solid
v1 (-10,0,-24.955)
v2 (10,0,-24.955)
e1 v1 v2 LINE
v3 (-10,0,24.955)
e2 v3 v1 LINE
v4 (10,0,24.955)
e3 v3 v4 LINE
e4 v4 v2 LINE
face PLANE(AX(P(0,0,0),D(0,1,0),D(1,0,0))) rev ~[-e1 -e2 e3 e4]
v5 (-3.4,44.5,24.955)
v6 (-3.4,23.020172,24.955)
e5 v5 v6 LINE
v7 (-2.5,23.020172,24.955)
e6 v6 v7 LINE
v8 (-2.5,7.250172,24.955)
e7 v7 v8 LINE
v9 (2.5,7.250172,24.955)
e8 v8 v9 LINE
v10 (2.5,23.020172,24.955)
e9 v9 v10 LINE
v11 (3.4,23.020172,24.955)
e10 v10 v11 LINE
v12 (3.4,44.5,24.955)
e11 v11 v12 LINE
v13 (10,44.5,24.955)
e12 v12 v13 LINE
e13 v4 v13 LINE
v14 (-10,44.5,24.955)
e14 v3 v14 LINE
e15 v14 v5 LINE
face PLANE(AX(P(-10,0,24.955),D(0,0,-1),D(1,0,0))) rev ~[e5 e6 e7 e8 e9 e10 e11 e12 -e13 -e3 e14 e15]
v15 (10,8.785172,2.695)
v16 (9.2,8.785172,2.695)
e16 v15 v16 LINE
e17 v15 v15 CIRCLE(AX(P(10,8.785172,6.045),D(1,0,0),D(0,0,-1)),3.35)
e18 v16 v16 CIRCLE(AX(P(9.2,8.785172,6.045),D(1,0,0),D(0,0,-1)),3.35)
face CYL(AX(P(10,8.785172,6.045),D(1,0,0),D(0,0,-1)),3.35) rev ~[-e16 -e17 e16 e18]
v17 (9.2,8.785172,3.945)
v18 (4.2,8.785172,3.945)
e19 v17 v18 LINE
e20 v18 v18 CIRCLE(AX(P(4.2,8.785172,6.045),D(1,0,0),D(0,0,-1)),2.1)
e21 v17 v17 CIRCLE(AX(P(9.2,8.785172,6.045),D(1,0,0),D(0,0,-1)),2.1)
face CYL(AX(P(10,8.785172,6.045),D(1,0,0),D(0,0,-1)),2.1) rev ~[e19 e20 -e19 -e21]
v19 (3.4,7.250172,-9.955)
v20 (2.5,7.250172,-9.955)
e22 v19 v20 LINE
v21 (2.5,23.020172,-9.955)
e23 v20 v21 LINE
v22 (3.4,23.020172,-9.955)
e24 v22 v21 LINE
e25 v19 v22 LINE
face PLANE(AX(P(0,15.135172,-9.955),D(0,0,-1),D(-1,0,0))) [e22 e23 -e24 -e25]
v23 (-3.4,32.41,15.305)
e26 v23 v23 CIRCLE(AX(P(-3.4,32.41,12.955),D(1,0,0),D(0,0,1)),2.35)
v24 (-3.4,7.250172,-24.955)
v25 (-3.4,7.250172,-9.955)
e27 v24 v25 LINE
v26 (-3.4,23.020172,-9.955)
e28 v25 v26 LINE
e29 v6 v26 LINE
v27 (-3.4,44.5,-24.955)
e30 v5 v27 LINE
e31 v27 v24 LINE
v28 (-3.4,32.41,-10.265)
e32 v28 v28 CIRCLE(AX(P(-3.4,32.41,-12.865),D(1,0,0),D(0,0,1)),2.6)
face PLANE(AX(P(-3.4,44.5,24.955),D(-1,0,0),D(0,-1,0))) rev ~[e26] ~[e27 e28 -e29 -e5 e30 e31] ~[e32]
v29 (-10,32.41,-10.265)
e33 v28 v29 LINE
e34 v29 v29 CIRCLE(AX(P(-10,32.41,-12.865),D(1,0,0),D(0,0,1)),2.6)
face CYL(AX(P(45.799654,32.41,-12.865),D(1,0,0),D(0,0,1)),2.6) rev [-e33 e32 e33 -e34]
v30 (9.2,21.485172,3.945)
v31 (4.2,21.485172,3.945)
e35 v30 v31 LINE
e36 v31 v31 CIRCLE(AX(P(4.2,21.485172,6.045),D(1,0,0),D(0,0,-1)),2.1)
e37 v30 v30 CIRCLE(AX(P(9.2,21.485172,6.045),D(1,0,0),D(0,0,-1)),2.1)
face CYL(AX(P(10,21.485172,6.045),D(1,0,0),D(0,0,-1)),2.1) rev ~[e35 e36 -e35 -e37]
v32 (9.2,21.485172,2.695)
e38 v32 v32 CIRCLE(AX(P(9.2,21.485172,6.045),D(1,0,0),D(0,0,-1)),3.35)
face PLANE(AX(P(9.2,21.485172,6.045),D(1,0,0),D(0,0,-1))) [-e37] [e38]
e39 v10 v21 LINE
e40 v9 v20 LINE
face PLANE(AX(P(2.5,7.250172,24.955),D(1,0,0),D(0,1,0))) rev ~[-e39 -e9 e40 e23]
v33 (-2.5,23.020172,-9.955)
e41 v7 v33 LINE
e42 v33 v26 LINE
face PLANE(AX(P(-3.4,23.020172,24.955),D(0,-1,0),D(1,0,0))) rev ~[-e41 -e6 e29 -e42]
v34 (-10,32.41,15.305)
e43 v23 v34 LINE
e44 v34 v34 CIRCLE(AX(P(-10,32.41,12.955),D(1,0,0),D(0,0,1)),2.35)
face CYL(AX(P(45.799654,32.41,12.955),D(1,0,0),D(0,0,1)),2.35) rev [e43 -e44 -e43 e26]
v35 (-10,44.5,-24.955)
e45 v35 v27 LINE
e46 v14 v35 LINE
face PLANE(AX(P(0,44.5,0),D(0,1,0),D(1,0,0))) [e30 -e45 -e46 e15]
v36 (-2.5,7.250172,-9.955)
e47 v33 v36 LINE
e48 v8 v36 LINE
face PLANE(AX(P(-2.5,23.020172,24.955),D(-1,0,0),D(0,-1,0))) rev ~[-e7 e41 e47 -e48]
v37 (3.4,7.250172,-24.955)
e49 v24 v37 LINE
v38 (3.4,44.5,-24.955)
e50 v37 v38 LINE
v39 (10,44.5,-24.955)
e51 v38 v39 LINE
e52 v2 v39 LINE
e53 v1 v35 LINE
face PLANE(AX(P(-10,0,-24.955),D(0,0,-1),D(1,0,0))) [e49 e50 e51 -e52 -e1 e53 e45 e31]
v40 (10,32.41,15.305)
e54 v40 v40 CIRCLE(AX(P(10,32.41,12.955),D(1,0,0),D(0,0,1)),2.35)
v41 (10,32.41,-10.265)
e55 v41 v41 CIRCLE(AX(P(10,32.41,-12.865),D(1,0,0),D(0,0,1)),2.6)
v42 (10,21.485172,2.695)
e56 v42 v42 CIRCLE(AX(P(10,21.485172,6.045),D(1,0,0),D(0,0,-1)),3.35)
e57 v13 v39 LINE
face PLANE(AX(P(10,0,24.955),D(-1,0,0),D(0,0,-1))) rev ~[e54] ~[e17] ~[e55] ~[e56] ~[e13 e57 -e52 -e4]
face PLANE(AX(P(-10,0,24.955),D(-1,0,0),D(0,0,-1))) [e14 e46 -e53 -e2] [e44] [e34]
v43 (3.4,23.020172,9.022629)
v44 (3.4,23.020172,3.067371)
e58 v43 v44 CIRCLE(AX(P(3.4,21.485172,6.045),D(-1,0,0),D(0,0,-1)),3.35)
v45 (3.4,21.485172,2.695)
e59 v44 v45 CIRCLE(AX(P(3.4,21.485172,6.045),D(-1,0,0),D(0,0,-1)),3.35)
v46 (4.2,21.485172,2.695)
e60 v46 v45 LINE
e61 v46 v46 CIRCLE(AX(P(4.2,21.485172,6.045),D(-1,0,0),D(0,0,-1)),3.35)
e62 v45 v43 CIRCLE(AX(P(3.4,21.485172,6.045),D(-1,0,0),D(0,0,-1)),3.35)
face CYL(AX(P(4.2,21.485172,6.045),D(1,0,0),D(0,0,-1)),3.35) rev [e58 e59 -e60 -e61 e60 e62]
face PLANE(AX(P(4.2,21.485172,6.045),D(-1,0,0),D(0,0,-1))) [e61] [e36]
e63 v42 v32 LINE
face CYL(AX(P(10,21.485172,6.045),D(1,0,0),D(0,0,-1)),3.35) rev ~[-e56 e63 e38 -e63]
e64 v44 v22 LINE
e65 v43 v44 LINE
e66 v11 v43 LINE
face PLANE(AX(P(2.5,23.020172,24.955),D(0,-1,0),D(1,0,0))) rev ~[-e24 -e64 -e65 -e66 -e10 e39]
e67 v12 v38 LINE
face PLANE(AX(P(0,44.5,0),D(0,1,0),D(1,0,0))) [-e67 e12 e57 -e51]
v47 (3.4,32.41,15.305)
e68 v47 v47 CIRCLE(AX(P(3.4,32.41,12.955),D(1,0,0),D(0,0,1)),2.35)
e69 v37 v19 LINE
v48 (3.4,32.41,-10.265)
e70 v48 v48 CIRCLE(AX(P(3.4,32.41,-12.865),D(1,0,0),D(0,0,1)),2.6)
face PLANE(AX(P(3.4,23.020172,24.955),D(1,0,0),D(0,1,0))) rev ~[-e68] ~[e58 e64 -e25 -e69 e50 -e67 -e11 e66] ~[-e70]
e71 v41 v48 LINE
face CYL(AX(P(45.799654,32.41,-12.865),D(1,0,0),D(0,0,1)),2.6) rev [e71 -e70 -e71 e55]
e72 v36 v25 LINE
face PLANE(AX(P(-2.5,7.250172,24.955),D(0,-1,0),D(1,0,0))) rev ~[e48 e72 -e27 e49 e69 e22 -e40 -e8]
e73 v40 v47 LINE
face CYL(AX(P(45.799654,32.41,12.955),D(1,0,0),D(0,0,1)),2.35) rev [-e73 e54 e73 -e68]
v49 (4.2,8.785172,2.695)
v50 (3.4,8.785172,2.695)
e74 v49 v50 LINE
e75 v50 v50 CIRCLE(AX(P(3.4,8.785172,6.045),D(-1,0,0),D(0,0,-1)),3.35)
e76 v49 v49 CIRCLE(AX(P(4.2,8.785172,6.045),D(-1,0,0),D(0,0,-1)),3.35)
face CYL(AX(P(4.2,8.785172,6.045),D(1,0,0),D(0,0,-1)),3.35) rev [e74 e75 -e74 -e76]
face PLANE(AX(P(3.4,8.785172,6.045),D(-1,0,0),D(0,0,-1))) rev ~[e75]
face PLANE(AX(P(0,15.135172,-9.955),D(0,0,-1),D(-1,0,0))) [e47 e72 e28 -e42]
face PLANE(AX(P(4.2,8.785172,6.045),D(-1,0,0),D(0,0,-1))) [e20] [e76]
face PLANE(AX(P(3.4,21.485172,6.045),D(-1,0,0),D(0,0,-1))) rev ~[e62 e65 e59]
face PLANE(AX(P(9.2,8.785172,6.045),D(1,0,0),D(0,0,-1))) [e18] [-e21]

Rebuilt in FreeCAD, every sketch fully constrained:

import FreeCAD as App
import Part
import Sketcher

V = App.Vector


def add_polygon(sketch, points):
    """Adds a closed chain of lines whose ends are joined by coincident constraints."""
    first, n = sketch.GeometryCount, len(points)
    for a, b in zip(points, points[1:] + points[:1]):
        sketch.addGeometry(Part.LineSegment(App.Vector(*a, 0), App.Vector(*b, 0)), False)
    for i in range(n):
        sketch.addConstraint(Sketcher.Constraint("Coincident", first + i, 2, first + (i + 1) % n, 1))

doc = App.newDocument("Part")
body = doc.addObject("PartDesign::Body", "Body")

# Sketch on XZ plane
sketch1 = body.newObject("Sketcher::SketchObject", "Sketch")
sketch1.AttachmentSupport = (doc.getObject("XZ_Plane"), [""])
sketch1.MapMode = "FlatFace"
add_polygon(sketch1, [(-10, -24.955), (-10, 24.955), (10, 24.955), (10, -24.955)])  # lines 0-3
sketch1.addConstraint([
    Sketcher.Constraint("Vertical", 0),
    Sketcher.Constraint("Horizontal", 1),
    Sketcher.Constraint("Vertical", 2),
    Sketcher.Constraint("Horizontal", 3),
    Sketcher.Constraint("Symmetric", 0, 2, 2, 2, -1, 1),
    Sketcher.Constraint("DistanceX", 1, 1, 1, 2, 20.0),
    Sketcher.Constraint("DistanceY", 0, 1, 0, 2, 49.91),
])
pad1 = body.newObject("PartDesign::Pad", "Pad")
pad1.Profile = sketch1
pad1.Length = 44.5
pad1.Reversed = True

# Sketch on XY plane
sketch2 = body.newObject("Sketcher::SketchObject", "Sketch001")
sketch2.AttachmentSupport = (doc.getObject("XY_Plane"), [""])
sketch2.MapMode = "FlatFace"
sketch2.AttachmentOffset = App.Placement(V(0, 0, 24.955), App.Rotation())
add_polygon(sketch2, [(3.4, 44.5), (-3.4, 44.5), (-3.4, 23.020172), (-2.5, 23.020172), (-2.5, 7.250172), (2.5, 7.250172), (2.5, 23.020172), (3.4, 23.020172)])  # lines 0-7
sketch2.addConstraint([
    Sketcher.Constraint("Horizontal", 0),
    Sketcher.Constraint("Vertical", 1),
    Sketcher.Constraint("Horizontal", 2),
    Sketcher.Constraint("Vertical", 3),
    Sketcher.Constraint("Horizontal", 4),
    Sketcher.Constraint("Vertical", 5),
    Sketcher.Constraint("Horizontal", 6),
    Sketcher.Constraint("Vertical", 7),
    Sketcher.Constraint("Symmetric", 2, 2, 5, 2, -2),
    Sketcher.Constraint("Equal", 2, 6),
    Sketcher.Constraint("DistanceX", 4, 1, 4, 2, 5.0),
    Sketcher.Constraint("DistanceX", 0, 2, 0, 1, 6.8),
    Sketcher.Constraint("DistanceY", 3, 2, 3, 1, 15.77),
    Sketcher.Constraint("DistanceY", -1, 1, 0, 2, 44.5),
    Sketcher.Constraint("DistanceY", 1, 2, 1, 1, 21.479828),
])
pocket1 = body.newObject("PartDesign::Pocket", "Pocket")
pocket1.Profile = sketch2
pocket1.Type = "ThroughAll"

# Sketch on YZ plane
sketch3 = body.newObject("Sketcher::SketchObject", "Sketch002")
sketch3.AttachmentSupport = (doc.getObject("YZ_Plane"), [""])
sketch3.MapMode = "FlatFace"
sketch3.AttachmentOffset = App.Placement(V(0, 0, -10), App.Rotation())
sketch3.addGeometry([
    Part.Circle(V(32.41, -12.865, 0), V(0, 0, 1), 2.6),
    Part.Circle(V(32.41, 12.955, 0), V(0, 0, 1), 2.35),
], False)
sketch3.addConstraint([
    Sketcher.Constraint("Vertical", 0, 3, 1, 3),
    Sketcher.Constraint("Diameter", 0, 5.2),
    Sketcher.Constraint("Diameter", 1, 4.7),
    Sketcher.Constraint("DistanceX", -1, 1, 0, 3, 32.41),
    Sketcher.Constraint("DistanceY", 0, 3, 1, 3, 25.82),
    Sketcher.Constraint("DistanceY", 0, 3, -1, 1, 12.865),
])
pocket2 = body.newObject("PartDesign::Pocket", "Pocket001")
pocket2.Profile = sketch3
pocket2.Type = "ThroughAll"
pocket2.Midplane = True

# Sketch on YZ plane
sketch4 = body.newObject("Sketcher::SketchObject", "Sketch003")
sketch4.AttachmentSupport = (doc.getObject("YZ_Plane"), [""])
sketch4.MapMode = "FlatFace"
sketch4.AttachmentOffset = App.Placement(V(0, 0, 10), App.Rotation())
sketch4.addGeometry([
    Part.Circle(V(21.485172, 6.045, 0), V(0, 0, 1), 2.1),
    Part.Circle(V(8.785172, 6.045, 0), V(0, 0, 1), 2.1),
], False)
sketch4.addConstraint([
    Sketcher.Constraint("Equal", 0, 1),
    Sketcher.Constraint("Horizontal", 0, 3, 1, 3),
    Sketcher.Constraint("Diameter", 0, 4.2),
    Sketcher.Constraint("DistanceX", 1, 3, 0, 3, 12.7),
    Sketcher.Constraint("DistanceY", -1, 1, 0, 3, 6.045),
    Sketcher.Constraint("DistanceX", -1, 1, 0, 3, 21.485172),
])
pocket3 = body.newObject("PartDesign::Pocket", "Pocket002")
pocket3.Profile = sketch4
pocket3.Length = 6.6

# Sketch on YZ plane
sketch5 = body.newObject("Sketcher::SketchObject", "Sketch004")
sketch5.AttachmentSupport = (doc.getObject("YZ_Plane"), [""])
sketch5.MapMode = "FlatFace"
sketch5.AttachmentOffset = App.Placement(V(0, 0, 10), App.Rotation())
sketch5.addGeometry([
    Part.Circle(V(21.485172, 6.045, 0), V(0, 0, 1), 3.35),
    Part.Circle(V(8.785172, 6.045, 0), V(0, 0, 1), 3.35),
], False)
sketch5.addConstraint([
    Sketcher.Constraint("Equal", 0, 1),
    Sketcher.Constraint("Horizontal", 0, 3, 1, 3),
    Sketcher.Constraint("Diameter", 0, 6.7),
    Sketcher.Constraint("DistanceX", 1, 3, 0, 3, 12.7),
    Sketcher.Constraint("DistanceY", -1, 1, 0, 3, 6.045),
    Sketcher.Constraint("DistanceX", -1, 1, 0, 3, 21.485172),
])
pocket4 = body.newObject("PartDesign::Pocket", "Pocket003")
pocket4.Profile = sketch5
pocket4.Length = 0.8

# Sketch on YZ plane
sketch6 = body.newObject("Sketcher::SketchObject", "Sketch005")
sketch6.AttachmentSupport = (doc.getObject("YZ_Plane"), [""])
sketch6.MapMode = "FlatFace"
sketch6.AttachmentOffset = App.Placement(V(0, 0, 4.2), App.Rotation())
sketch6.addGeometry([
    Part.Circle(V(21.485172, 6.045, 0), V(0, 0, 1), 3.35),
    Part.Circle(V(8.785172, 6.045, 0), V(0, 0, 1), 3.35),
], False)
sketch6.addConstraint([
    Sketcher.Constraint("Equal", 0, 1),
    Sketcher.Constraint("Horizontal", 0, 3, 1, 3),
    Sketcher.Constraint("Diameter", 0, 6.7),
    Sketcher.Constraint("DistanceX", 1, 3, 0, 3, 12.7),
    Sketcher.Constraint("DistanceY", -1, 1, 0, 3, 6.045),
    Sketcher.Constraint("DistanceX", -1, 1, 0, 3, 21.485172),
])
pocket5 = body.newObject("PartDesign::Pocket", "Pocket004")
pocket5.Profile = sketch6
pocket5.Length = 0.8

# Sketch on XY plane
sketch7 = body.newObject("Sketcher::SketchObject", "Sketch006")
sketch7.AttachmentSupport = (doc.getObject("XY_Plane"), [""])
sketch7.MapMode = "FlatFace"
sketch7.AttachmentOffset = App.Placement(V(0, 0, -24.955), App.Rotation())
add_polygon(sketch7, [(3.4, 23.020172), (3.4, 7.250172), (-3.4, 7.250172), (-3.4, 23.020172)])  # lines 0-3
sketch7.addConstraint([
    Sketcher.Constraint("Vertical", 0),
    Sketcher.Constraint("Horizontal", 1),
    Sketcher.Constraint("Vertical", 2),
    Sketcher.Constraint("Horizontal", 3),
    Sketcher.Constraint("DistanceX", 1, 2, 1, 1, 6.8),
    Sketcher.Constraint("DistanceY", 0, 2, 0, 1, 15.77),
    Sketcher.Constraint("DistanceX", -1, 1, 0, 2, 3.4),
    Sketcher.Constraint("DistanceY", -1, 1, 0, 2, 7.250172),
])
pocket6 = body.newObject("PartDesign::Pocket", "Pocket005")
pocket6.Profile = sketch7
pocket6.Length = 15
pocket6.Reversed = True

doc.recompute()
